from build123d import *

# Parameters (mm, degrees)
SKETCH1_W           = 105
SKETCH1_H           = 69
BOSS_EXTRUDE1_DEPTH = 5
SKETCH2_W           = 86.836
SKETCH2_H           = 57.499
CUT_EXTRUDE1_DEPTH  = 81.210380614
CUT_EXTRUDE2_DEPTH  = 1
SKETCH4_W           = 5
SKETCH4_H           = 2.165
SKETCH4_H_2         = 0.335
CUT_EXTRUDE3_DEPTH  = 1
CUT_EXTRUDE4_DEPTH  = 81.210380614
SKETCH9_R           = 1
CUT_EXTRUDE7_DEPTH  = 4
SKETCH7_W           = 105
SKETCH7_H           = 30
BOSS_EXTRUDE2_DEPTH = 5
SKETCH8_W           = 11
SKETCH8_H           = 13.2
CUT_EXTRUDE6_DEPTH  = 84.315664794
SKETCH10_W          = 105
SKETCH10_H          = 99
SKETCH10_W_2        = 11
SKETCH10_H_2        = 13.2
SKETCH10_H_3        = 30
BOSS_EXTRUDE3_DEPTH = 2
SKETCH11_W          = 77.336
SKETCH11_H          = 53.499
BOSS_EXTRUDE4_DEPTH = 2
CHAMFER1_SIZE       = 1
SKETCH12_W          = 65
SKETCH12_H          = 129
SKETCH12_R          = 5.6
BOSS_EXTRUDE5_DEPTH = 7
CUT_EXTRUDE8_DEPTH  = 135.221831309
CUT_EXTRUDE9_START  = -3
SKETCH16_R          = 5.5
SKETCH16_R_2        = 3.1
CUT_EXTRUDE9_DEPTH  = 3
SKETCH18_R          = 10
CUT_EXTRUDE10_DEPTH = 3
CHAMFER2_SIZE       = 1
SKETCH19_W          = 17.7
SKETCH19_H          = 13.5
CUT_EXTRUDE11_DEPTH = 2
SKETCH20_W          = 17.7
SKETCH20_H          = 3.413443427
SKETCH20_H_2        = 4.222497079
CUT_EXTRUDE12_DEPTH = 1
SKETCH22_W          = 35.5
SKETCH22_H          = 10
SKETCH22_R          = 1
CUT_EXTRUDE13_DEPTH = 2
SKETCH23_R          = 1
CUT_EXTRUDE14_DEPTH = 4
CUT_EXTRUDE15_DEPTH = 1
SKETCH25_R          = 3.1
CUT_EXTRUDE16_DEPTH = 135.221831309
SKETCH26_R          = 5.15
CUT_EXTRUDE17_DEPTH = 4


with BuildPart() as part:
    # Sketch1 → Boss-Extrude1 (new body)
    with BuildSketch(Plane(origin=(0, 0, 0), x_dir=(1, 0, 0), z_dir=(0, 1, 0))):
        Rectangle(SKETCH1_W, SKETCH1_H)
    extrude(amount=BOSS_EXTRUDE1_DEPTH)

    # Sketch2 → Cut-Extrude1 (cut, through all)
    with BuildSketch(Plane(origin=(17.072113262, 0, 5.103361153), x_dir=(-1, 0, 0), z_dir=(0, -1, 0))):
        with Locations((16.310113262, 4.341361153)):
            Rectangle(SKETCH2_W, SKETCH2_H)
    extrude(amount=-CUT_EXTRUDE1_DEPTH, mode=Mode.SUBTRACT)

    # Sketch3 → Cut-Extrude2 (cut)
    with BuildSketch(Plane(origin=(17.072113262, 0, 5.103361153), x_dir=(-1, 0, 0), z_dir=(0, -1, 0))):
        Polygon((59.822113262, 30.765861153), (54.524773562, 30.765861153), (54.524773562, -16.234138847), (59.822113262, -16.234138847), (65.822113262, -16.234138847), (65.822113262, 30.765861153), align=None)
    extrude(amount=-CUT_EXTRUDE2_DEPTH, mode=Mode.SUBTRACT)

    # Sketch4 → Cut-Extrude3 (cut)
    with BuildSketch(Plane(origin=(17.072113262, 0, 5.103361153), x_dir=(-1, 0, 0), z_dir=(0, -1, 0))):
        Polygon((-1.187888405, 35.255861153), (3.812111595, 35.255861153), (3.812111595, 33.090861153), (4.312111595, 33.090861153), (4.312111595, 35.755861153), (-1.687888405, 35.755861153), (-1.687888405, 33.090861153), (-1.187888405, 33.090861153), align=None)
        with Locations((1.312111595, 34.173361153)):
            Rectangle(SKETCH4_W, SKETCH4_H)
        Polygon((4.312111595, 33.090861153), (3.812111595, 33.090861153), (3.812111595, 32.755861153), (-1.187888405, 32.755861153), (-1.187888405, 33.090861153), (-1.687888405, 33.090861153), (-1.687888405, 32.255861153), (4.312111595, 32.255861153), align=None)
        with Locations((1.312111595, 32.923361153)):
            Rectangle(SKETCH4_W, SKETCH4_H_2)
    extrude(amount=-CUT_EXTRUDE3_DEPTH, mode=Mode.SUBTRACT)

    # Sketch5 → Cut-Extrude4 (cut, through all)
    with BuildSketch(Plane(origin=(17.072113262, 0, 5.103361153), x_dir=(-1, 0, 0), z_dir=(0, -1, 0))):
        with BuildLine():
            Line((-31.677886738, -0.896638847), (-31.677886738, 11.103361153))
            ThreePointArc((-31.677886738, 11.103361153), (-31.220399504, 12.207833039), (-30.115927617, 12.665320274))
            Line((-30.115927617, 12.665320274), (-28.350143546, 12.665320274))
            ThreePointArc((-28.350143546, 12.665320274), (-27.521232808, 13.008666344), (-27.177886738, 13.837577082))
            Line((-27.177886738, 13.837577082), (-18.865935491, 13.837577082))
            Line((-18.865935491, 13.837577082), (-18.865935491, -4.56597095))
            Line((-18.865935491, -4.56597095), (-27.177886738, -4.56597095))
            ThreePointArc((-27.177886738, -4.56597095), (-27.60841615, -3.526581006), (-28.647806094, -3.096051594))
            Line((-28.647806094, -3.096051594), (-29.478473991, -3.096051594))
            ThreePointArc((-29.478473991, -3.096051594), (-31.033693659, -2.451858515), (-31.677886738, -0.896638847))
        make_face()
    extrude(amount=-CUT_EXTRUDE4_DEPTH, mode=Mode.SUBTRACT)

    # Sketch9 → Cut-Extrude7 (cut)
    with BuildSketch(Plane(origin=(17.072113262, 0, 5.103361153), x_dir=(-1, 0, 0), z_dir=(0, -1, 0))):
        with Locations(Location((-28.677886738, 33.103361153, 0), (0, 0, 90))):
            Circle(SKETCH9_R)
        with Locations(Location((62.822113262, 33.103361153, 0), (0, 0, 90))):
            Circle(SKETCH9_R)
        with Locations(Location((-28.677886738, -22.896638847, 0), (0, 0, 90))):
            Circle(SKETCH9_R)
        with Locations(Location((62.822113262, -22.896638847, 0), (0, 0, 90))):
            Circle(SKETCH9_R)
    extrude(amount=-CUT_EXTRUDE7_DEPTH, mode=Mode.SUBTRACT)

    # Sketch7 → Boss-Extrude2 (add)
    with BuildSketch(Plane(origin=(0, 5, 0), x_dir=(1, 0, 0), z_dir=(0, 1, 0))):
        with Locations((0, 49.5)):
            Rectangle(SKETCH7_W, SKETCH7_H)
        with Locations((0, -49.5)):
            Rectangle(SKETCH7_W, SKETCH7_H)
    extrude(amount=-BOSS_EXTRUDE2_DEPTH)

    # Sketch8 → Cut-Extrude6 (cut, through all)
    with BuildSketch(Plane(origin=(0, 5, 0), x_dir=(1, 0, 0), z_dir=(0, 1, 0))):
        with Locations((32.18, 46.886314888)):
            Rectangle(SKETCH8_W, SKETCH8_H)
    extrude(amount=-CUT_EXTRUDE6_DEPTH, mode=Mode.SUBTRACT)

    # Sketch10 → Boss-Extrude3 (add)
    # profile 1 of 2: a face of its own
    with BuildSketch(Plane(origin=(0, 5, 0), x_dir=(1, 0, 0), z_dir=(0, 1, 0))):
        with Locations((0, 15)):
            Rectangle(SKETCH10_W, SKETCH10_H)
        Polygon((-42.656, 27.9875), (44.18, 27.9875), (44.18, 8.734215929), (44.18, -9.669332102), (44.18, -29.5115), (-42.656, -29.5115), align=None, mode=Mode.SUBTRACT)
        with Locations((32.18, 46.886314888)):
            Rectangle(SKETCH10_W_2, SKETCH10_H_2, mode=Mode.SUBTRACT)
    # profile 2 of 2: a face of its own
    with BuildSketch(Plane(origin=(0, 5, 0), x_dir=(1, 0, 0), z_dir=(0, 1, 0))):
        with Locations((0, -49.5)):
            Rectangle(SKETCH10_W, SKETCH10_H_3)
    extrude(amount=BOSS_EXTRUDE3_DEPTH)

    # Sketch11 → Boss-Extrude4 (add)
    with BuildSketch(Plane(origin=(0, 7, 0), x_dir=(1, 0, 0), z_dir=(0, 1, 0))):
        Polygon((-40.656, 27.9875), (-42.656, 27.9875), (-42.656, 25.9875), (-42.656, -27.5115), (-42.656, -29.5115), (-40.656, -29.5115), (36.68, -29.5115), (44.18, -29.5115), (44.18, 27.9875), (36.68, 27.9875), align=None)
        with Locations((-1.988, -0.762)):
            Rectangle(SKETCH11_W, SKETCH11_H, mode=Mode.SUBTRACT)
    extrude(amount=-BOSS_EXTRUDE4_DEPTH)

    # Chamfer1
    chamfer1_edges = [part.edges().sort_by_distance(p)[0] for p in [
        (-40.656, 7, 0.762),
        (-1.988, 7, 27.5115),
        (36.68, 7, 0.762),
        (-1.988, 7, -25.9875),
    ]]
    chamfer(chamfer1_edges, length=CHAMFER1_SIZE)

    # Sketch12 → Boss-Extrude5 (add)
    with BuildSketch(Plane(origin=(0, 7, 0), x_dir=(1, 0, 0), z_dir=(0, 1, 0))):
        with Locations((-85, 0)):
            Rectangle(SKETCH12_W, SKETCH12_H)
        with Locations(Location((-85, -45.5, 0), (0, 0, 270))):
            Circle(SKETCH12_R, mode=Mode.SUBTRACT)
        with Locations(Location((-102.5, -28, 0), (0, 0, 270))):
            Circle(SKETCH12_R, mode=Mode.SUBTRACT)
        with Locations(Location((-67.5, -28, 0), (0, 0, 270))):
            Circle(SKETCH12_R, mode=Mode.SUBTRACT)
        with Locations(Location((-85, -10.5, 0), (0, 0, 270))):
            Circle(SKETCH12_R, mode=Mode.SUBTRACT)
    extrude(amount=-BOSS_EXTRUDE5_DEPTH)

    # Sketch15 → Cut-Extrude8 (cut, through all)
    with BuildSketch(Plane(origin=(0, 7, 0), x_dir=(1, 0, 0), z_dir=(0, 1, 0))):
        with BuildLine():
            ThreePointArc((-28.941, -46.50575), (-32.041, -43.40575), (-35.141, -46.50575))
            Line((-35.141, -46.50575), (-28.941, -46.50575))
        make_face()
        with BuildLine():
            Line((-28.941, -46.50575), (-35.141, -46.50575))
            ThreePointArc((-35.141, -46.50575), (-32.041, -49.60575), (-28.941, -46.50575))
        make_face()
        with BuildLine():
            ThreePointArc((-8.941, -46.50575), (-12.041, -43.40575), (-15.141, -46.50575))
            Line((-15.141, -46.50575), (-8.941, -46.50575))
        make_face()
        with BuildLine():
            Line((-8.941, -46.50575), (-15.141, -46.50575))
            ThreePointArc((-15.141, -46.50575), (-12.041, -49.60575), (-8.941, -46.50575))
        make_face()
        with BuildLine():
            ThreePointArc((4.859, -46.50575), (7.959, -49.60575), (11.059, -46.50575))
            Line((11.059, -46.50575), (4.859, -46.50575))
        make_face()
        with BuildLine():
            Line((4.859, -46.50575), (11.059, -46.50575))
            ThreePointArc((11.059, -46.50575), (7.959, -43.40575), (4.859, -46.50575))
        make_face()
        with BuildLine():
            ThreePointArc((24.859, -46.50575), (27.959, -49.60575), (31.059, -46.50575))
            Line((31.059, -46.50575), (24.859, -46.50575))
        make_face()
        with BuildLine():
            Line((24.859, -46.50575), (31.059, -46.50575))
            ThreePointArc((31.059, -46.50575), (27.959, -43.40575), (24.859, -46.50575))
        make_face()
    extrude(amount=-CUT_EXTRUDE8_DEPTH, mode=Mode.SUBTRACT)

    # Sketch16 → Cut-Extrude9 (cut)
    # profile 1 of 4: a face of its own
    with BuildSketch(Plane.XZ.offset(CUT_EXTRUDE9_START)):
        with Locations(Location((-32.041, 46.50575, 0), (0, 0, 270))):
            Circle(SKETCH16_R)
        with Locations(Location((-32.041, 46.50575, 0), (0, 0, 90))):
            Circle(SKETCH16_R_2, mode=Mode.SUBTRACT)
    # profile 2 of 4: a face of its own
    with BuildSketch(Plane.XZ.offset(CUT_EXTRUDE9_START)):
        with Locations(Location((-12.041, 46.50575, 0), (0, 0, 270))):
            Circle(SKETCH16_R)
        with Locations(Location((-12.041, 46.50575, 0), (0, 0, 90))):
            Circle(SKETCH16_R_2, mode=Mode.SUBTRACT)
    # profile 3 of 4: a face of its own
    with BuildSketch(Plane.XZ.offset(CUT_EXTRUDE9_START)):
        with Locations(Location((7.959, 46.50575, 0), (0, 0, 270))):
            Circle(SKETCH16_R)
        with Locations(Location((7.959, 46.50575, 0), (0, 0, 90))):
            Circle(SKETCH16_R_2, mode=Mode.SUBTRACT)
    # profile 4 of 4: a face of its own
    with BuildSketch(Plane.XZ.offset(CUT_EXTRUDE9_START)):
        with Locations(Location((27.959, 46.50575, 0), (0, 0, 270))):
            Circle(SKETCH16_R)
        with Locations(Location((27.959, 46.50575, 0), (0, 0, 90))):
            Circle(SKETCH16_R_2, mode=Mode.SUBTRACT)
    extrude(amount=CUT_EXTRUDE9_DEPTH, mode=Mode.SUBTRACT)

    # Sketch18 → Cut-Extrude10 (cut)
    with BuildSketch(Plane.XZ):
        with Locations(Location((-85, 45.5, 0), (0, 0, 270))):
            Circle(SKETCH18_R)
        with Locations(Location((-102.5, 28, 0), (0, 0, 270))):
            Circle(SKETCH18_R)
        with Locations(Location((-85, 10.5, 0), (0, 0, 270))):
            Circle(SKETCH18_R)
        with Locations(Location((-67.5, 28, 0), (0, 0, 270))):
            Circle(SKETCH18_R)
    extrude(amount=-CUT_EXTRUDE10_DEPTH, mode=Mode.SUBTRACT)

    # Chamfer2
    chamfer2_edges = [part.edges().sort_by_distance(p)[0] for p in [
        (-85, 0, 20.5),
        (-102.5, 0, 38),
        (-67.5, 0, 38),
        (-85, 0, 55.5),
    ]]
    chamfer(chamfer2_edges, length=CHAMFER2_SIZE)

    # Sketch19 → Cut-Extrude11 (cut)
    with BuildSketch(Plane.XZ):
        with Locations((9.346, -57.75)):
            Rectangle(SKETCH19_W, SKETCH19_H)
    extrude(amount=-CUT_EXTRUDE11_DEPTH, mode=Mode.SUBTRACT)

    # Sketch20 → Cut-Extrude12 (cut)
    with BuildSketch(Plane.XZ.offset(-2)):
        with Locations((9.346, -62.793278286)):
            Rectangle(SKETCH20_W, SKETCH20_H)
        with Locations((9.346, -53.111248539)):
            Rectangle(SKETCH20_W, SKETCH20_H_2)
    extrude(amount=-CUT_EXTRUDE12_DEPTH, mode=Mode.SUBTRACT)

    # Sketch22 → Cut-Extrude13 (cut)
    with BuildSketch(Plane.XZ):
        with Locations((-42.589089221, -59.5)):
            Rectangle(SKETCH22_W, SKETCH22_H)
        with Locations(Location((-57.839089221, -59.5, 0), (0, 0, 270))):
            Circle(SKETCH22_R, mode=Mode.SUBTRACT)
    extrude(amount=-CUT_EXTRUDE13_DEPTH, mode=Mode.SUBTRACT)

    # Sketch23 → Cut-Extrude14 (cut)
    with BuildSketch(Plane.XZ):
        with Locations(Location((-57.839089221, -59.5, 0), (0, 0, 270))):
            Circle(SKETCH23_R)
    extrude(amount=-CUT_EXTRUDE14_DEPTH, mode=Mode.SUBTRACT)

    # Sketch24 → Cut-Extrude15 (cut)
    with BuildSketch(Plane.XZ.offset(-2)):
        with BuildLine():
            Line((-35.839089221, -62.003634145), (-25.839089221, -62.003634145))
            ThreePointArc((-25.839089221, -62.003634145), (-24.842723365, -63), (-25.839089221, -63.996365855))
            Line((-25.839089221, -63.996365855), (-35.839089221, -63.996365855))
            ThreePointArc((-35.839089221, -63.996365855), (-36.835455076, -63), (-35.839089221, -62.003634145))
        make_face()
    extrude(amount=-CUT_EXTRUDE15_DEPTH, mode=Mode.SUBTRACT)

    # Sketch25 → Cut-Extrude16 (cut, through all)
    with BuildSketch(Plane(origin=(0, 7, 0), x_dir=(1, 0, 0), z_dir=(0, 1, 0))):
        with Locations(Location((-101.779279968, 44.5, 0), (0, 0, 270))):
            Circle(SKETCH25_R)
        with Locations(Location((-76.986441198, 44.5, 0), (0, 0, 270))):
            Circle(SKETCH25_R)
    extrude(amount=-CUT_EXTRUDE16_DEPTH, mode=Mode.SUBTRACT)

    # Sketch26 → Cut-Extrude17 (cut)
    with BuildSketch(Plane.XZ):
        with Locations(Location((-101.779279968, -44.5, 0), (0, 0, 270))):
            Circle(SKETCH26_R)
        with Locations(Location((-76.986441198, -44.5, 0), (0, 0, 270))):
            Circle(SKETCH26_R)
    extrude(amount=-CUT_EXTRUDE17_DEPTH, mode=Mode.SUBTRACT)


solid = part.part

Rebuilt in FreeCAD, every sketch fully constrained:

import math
import FreeCAD as App
import Part
import Sketcher
Q = App.Units.Quantity


def edges_at(feature, points):
    """Names of the edges that pass closest to the given points."""
    edges = feature.Shape.Edges
    near = lambda p: min(range(len(edges)), key=lambda i: edges[i].distToShape(Part.Vertex(*p))[0])
    return sorted({f"Edge{near(p) + 1}" for p in points})


def add_polygon(sketch, points):
    """Adds a closed chain of lines whose ends are joined by coincident constraints."""
    first, n = sketch.GeometryCount, len(points)
    for a, b in zip(points, points[1:] + points[:1]):
        sketch.addGeometry(Part.LineSegment(App.Vector(*a, 0), App.Vector(*b, 0)), False)
    for i in range(n):
        sketch.addConstraint(Sketcher.Constraint("Coincident", first + i, 2, first + (i + 1) % n, 1))

doc = App.newDocument("Part")
body = doc.addObject("PartDesign::Body", "Body")

# Sketch on XZ plane
sketch1 = doc.addObject("Sketcher::SketchObject", "Sketch")
body.addObject(sketch1)
sketch1.AttachmentSupport = (doc.XZ_Plane, [""])
sketch1.MapMode = "FlatFace"
add_polygon(sketch1, [(-52, -34), (-52, 34), (52, 34), (52, -34)])  # lines 0-3
sketch1.addConstraint(Sketcher.Constraint("Vertical", 0))
sketch1.addConstraint(Sketcher.Constraint("Horizontal", 1))
sketch1.addConstraint(Sketcher.Constraint("Vertical", 2))
sketch1.addConstraint(Sketcher.Constraint("Horizontal", 3))
sketch1.addConstraint(Sketcher.Constraint("Symmetric", 0, 2, 2, 2, -1, 1))
sketch1.addConstraint(Sketcher.Constraint("DistanceX", 1, 1, 1, 2, Q("105 mm")))
sketch1.addConstraint(Sketcher.Constraint("DistanceY", 0, 1, 0, 2, Q("69 mm")))
pad1 = doc.addObject("PartDesign::Pad", "Pad")
body.addObject(pad1)
pad1.Profile = sketch1
pad1.Length = 5
pad1.Reversed = True

# Sketch on XZ plane
sketch2 = doc.addObject("Sketcher::SketchObject", "Sketch001")
body.addObject(sketch2)
sketch2.AttachmentSupport = (doc.XZ_Plane, [""])
sketch2.MapMode = "FlatFace"
add_polygon(sketch2, [(44, -28), (44, 30), (-43, 30), (-43, -28)])  # lines 0-3
sketch2.addConstraint(Sketcher.Constraint("Vertical", 0))
sketch2.addConstraint(Sketcher.Constraint("Horizontal", 1))
sketch2.addConstraint(Sketcher.Constraint("Vertical", 2))
sketch2.addConstraint(Sketcher.Constraint("Horizontal", 3))
sketch2.addConstraint(Sketcher.Constraint("DistanceX", 1, 2, 1, 1, Q("86.836 mm")))
sketch2.addConstraint(Sketcher.Constraint("DistanceY", 0, 1, 0, 2, Q("57.499 mm")))
sketch2.addConstraint(Sketcher.Constraint("DistanceX", -1, 1, 0, 2, Q("44.18 mm")))
sketch2.addConstraint(Sketcher.Constraint("DistanceY", -1, 1, 0, 2, Q("29.5115 mm")))
pocket1 = doc.addObject("PartDesign::Pocket", "Pocket")
body.addObject(pocket1)
pocket1.Profile = sketch2
pocket1.Type = "ThroughAll"

# Sketch on XZ plane
sketch3 = doc.addObject("Sketcher::SketchObject", "Sketch002")
body.addObject(sketch3)
sketch3.AttachmentSupport = (doc.XZ_Plane, [""])
sketch3.MapMode = "FlatFace"
add_polygon(sketch3, [(-37, -26), (-37, 21), (-49, 21), (-49, -26)])  # lines 0-3
sketch3.addConstraint(Sketcher.Constraint("Vertical", 0))
sketch3.addConstraint(Sketcher.Constraint("Horizontal", 1))
sketch3.addConstraint(Sketcher.Constraint("Vertical", 2))
sketch3.addConstraint(Sketcher.Constraint("Horizontal", 3))
sketch3.addConstraint(Sketcher.Constraint("DistanceY", 0, 1, 0, 2, Q("47 mm")))
sketch3.addConstraint(Sketcher.Constraint("DistanceX", 1, 2, -1, 1, Q("48.75 mm")))
sketch3.addConstraint(Sketcher.Constraint("DistanceX", 1, 2, 1, 1, Q("11.29734 mm")))
sketch3.addConstraint(Sketcher.Constraint("DistanceY", -1, 1, 0, 2, Q("21.3375 mm")))
pocket2 = doc.addObject("PartDesign::Pocket", "Pocket001")
body.addObject(pocket2)
pocket2.Profile = sketch3
pocket2.Length = 1

# Sketch on XZ plane
sketch4 = doc.addObject("Sketcher::SketchObject", "Sketch003")
body.addObject(sketch4)
sketch4.AttachmentSupport = (doc.XZ_Plane, [""])
sketch4.MapMode = "FlatFace"
add_polygon(sketch4, [(12.8, -30.7), (18.8, -30.7), (18.8, -27.2), (12.8, -27.2)])  # lines 0-3
sketch4.addConstraint(Sketcher.Constraint("Horizontal", 0))
sketch4.addConstraint(Sketcher.Constraint("Vertical", 1))
sketch4.addConstraint(Sketcher.Constraint("Horizontal", 2))
sketch4.addConstraint(Sketcher.Constraint("Vertical", 3))
sketch4.addConstraint(Sketcher.Constraint("DistanceX", 0, 1, 0, 2, Q("6 mm")))
sketch4.addConstraint(Sketcher.Constraint("DistanceY", 1, 1, 1, 2, Q("3.5 mm")))
sketch4.addConstraint(Sketcher.Constraint("DistanceX", -1, 1, 0, 2, Q("18.760002 mm")))
sketch4.addConstraint(Sketcher.Constraint("DistanceY", 0, 2, -1, 1, Q("30.6525 mm")))
pocket3 = doc.addObject("PartDesign::Pocket", "Pocket002")
body.addObject(pocket3)
pocket3.Profile = sketch4
pocket3.Length = 1

# Sketch on XZ plane
sketch5 = doc.addObject("Sketcher::SketchObject", "Sketch004")
body.addObject(sketch5)
sketch5.AttachmentSupport = (doc.XZ_Plane, [""])
sketch5.MapMode = "FlatFace"
sketch5.addGeometry(Part.LineSegment(App.Vector(48.8, -6, 0), App.Vector(48.8, 6, 0)), False)
sketch5.addGeometry(Part.ArcOfCircle(Part.Circle(App.Vector(46.6, 6, 0), App.Vector(0, 0, 1), 2.2), math.radians(0), math.radians(90)), False)
sketch5.addGeometry(Part.LineSegment(App.Vector(46.6, 8.2, 0), App.Vector(45.7, 8.2, 0)), False)
sketch5.addGeometry(Part.ArcOfCircle(Part.Circle(App.Vector(45.7, 9.7, 0), App.Vector(0, 0, 1), 1.5), math.radians(-180), math.radians(-90)), False)
sketch5.addGeometry(Part.LineSegment(App.Vector(44.2, 9.7, 0), App.Vector(35.9, 9.7, 0)), False)
sketch5.addGeometry(Part.LineSegment(App.Vector(35.9, 9.7, 0), App.Vector(35.9, -8.7, 0)), False)
sketch5.addGeometry(Part.LineSegment(App.Vector(35.9, -8.7, 0), App.Vector(44.2, -8.7, 0)), False)
sketch5.addGeometry(Part.ArcOfCircle(Part.Circle(App.Vector(45.4, -8.7, 0), App.Vector(0, 0, 1), 1.2), math.radians(90), math.radians(180)), False)
sketch5.addGeometry(Part.LineSegment(App.Vector(45.4, -7.6, 0), App.Vector(47.2, -7.6, 0)), False)
sketch5.addGeometry(Part.ArcOfCircle(Part.Circle(App.Vector(47.2, -6, 0), App.Vector(0, 0, 1), 1.6), math.radians(-90), math.radians(0)), False)
sketch5.addConstraint(Sketcher.Constraint("Tangent", 0, 2, 1, 1))
sketch5.addConstraint(Sketcher.Constraint("Tangent", 1, 2, 2, 1))
sketch5.addConstraint(Sketcher.Constraint("Tangent", 2, 2, 3, 2))
sketch5.addConstraint(Sketcher.Constraint("Coincident", 3, 1, 4, 1))
sketch5.addConstraint(Sketcher.Constraint("Coincident", 4, 2, 5, 1))
sketch5.addConstraint(Sketcher.Constraint("Coincident", 5, 2, 6, 1))
sketch5.addConstraint(Sketcher.Constraint("Coincident", 6, 2, 7, 2))
sketch5.addConstraint(Sketcher.Constraint("Tangent", 7, 1, 8, 1))
sketch5.addConstraint(Sketcher.Constraint("Tangent", 8, 2, 9, 1))
sketch5.addConstraint(Sketcher.Constraint("Tangent", 9, 2, 0, 1))
sketch5.addConstraint(Sketcher.Constraint("Vertical", 0))
sketch5.addConstraint(Sketcher.Constraint("Horizontal", 2))
sketch5.addConstraint(Sketcher.Constraint("Horizontal", 4))
sketch5.addConstraint(Sketcher.Constraint("Vertical", 5))
sketch5.addConstraint(Sketcher.Constraint("Horizontal", 6))
sketch5.addConstraint(Sketcher.Constraint("Horizontal", 8))
sketch5.addConstraint(Sketcher.Constraint("Horizontal", 7, 3, 5, 2))
sketch5.addConstraint(Sketcher.Constraint("Vertical", 3, 1, 6, 2))
sketch5.addConstraint(Sketcher.Constraint("DistanceY", 0, 1, 0, 2, Q("12 mm")))
sketch5.addConstraint(Sketcher.Constraint("DistanceY", -1, 1, 1, 3, Q("6 mm")))
sketch5.addConstraint(Sketcher.Constraint("DistanceX", 3, 1, 0, 2, Q("4.5 mm")))
sketch5.addConstraint(Sketcher.Constraint("DistanceX", -1, 1, 0, 2, Q("48.75 mm")))
sketch5.addConstraint(Sketcher.Constraint("Radius", 3, Q("1.469919 mm")))
sketch5.addConstraint(Sketcher.Constraint("Radius", 9, Q("1.561959 mm")))
sketch5.addConstraint(Sketcher.Constraint("Radius", 1, Q("2.199413 mm")))
sketch5.addConstraint(Sketcher.Constraint("Radius", 7, Q("1.172257 mm")))
sketch5.addConstraint(Sketcher.Constraint("DistanceX", 4, 2, 4, 1, Q("8.311951 mm")))
sketch5.addConstraint(Sketcher.Constraint("DistanceY", 5, 2, 5, 1, Q("18.403548 mm")))
pocket4 = doc.addObject("PartDesign::Pocket", "Pocket003")
body.addObject(pocket4)
pocket4.Profile = sketch5
pocket4.Type = "ThroughAll"

# Sketch on XZ plane
sketch6 = doc.addObject("Sketcher::SketchObject", "Sketch005")
body.addObject(sketch6)
sketch6.AttachmentSupport = (doc.XZ_Plane, [""])
sketch6.MapMode = "FlatFace"
sketch6.addGeometry(Part.Circle(App.Vector(45.8, -28, 0), App.Vector(0, 0, 1), 1), False)
sketch6.addGeometry(Part.Circle(App.Vector(-45.8, -28, 0), App.Vector(0, 0, 1), 1), False)
sketch6.addGeometry(Part.Circle(App.Vector(45.8, 28, 0), App.Vector(0, 0, 1), 1), False)
sketch6.addGeometry(Part.Circle(App.Vector(-45.8, 28, 0), App.Vector(0, 0, 1), 1), False)
sketch6.addConstraint(Sketcher.Constraint("Equal", 0, 1))
sketch6.addConstraint(Sketcher.Constraint("Equal", 1, 2))
sketch6.addConstraint(Sketcher.Constraint("Equal", 2, 3))
sketch6.addConstraint(Sketcher.Constraint("Symmetric", 1, 3, 2, 3, -1, 1))
sketch6.addConstraint(Sketcher.Constraint("Symmetric", 0, 3, 3, 3, -1, 1))
sketch6.addConstraint(Sketcher.Constraint("Symmetric", 0, 3, 1, 3, -2))
sketch6.addConstraint(Sketcher.Constraint("Diameter", 0, Q("2 mm")))
sketch6.addConstraint(Sketcher.Constraint("DistanceY", 0, 3, -1, 1, Q("28 mm")))
sketch6.addConstraint(Sketcher.Constraint("DistanceX", 1, 3, 0, 3, Q("91.5 mm")))
pocket5 = doc.addObject("PartDesign::Pocket", "Pocket004")
body.addObject(pocket5)
pocket5.Profile = sketch6
pocket5.Length = 4

# Sketch on XZ plane
sketch7 = doc.addObject("Sketcher::SketchObject", "Sketch006")
body.addObject(sketch7)
sketch7.AttachmentSupport = (doc.XZ_Plane, [""])
sketch7.MapMode = "FlatFace"
sketch7.AttachmentOffset = App.Placement(App.Vector(0, 0, -5), App.Rotation())
add_polygon(sketch7, [(-52, -64), (-52, -34), (52, -34), (52, -64)])  # lines 0-3
add_polygon(sketch7, [(-52, 34), (-52, 64), (52, 64), (52, 34)])  # lines 4-7
sketch7.addConstraint(Sketcher.Constraint("Vertical", 0))
sketch7.addConstraint(Sketcher.Constraint("Horizontal", 1))
sketch7.addConstraint(Sketcher.Constraint("Vertical", 2))
sketch7.addConstraint(Sketcher.Constraint("Horizontal", 3))
sketch7.addConstraint(Sketcher.Constraint("Vertical", 4))
sketch7.addConstraint(Sketcher.Constraint("Horizontal", 5))
sketch7.addConstraint(Sketcher.Constraint("Vertical", 6))
sketch7.addConstraint(Sketcher.Constraint("Horizontal", 7))
sketch7.addConstraint(Sketcher.Constraint("Symmetric", 2, 2, 4, 2, -1, 1))
sketch7.addConstraint(Sketcher.Constraint("Symmetric", 0, 2, 6, 2, -1, 1))
sketch7.addConstraint(Sketcher.Constraint("Vertical", 3, 2, 4, 2))
sketch7.addConstraint(Sketcher.Constraint("DistanceX", 1, 1, 1, 2, Q("105 mm")))
sketch7.addConstraint(Sketcher.Constraint("DistanceY", 0, 1, 0, 2, Q("30 mm")))
sketch7.addConstraint(Sketcher.Constraint("DistanceY", 0, 2, 4, 2, Q("99 mm")))
pad2 = doc.addObject("PartDesign::Pad", "Pad001")
body.addObject(pad2)
pad2.Profile = sketch7
pad2.Length = 5

# Sketch on XZ plane
sketch8 = doc.addObject("Sketcher::SketchObject", "Sketch007")
body.addObject(sketch8)
sketch8.AttachmentSupport = (doc.XZ_Plane, [""])
sketch8.MapMode = "FlatFace"
sketch8.AttachmentOffset = App.Placement(App.Vector(0, 0, -5), App.Rotation())
add_polygon(sketch8, [(27, -53), (27, -40), (38, -40), (38, -53)])  # lines 0-3
sketch8.addConstraint(Sketcher.Constraint("Vertical", 0))
sketch8.addConstraint(Sketcher.Constraint("Horizontal", 1))
sketch8.addConstraint(Sketcher.Constraint("Vertical", 2))
sketch8.addConstraint(Sketcher.Constraint("Horizontal", 3))
sketch8.addConstraint(Sketcher.Constraint("DistanceX", 1, 1, 1, 2, Q("11 mm")))
sketch8.addConstraint(Sketcher.Constraint("DistanceY", 0, 1, 0, 2, Q("13.2 mm")))
sketch8.addConstraint(Sketcher.Constraint("DistanceX", -1, 1, 0, 2, Q("26.68 mm")))
sketch8.addConstraint(Sketcher.Constraint("DistanceY", 0, 2, -1, 1, Q("40.286315 mm")))
pocket6 = doc.addObject("PartDesign::Pocket", "Pocket005")
body.addObject(pocket6)
pocket6.Profile = sketch8
pocket6.Type = "ThroughAll"
pocket6.Reversed = True

# Sketch on XZ plane
sketch9 = doc.addObject("Sketcher::SketchObject", "Sketch008")
body.addObject(sketch9)
sketch9.AttachmentSupport = (doc.XZ_Plane, [""])
sketch9.MapMode = "FlatFace"
sketch9.AttachmentOffset = App.Placement(App.Vector(0, 0, -5), App.Rotation())
add_polygon(sketch9, [(-52, -64), (-52, 64), (52, 64), (52, -64)])  # lines 0-3
add_polygon(sketch9, [(-43, 30), (-43, -28), (44, -28), (44, 30)])  # lines 4-7
add_polygon(sketch9, [(38, -40), (27, -40), (27, -53), (38, -53)])  # lines 8-11
sketch9.addConstraint(Sketcher.Constraint("Vertical", 0))
sketch9.addConstraint(Sketcher.Constraint("Horizontal", 1))
sketch9.addConstraint(Sketcher.Constraint("Vertical", 2))
sketch9.addConstraint(Sketcher.Constraint("Horizontal", 3))
sketch9.addConstraint(Sketcher.Constraint("Vertical", 4))
sketch9.addConstraint(Sketcher.Constraint("Horizontal", 5))
sketch9.addConstraint(Sketcher.Constraint("Vertical", 6))
sketch9.addConstraint(Sketcher.Constraint("Horizontal", 7))
sketch9.addConstraint(Sketcher.Constraint("Horizontal", 8))
sketch9.addConstraint(Sketcher.Constraint("Vertical", 9))
sketch9.addConstraint(Sketcher.Constraint("Horizontal", 10))
sketch9.addConstraint(Sketcher.Constraint("Vertical", 11))
sketch9.addConstraint(Sketcher.Constraint("Symmetric", 0, 2, 2, 2, -1, 1))
sketch9.addConstraint(Sketcher.Constraint("DistanceX", 1, 1, 1, 2, Q("105 mm")))
sketch9.addConstraint(Sketcher.Constraint("DistanceX", 8, 2, 8, 1, Q("11 mm")))
sketch9.addConstraint(Sketcher.Constraint("DistanceY", 0, 1, 0, 2, Q("129 mm")))
sketch9.addConstraint(Sketcher.Constraint("DistanceY", 9, 2, 9, 1, Q("13.2 mm")))
sketch9.addConstraint(Sketcher.Constraint("DistanceX", 8, 2, 5, 2, Q("17.5 mm")))
sketch9.addConstraint(Sketcher.Constraint("DistanceX", 5, 1, 5, 2, Q("86.836 mm")))
sketch9.addConstraint(Sketcher.Constraint("DistanceY", 4, 2, 4, 1, Q("57.499 mm")))
sketch9.addConstraint(Sketcher.Constraint("DistanceX", -1, 1, 5, 2, Q("44.18 mm")))
sketch9.addConstraint(Sketcher.Constraint("DistanceY", 4, 2, -1, 1, Q("27.9875 mm")))
sketch9.addConstraint(Sketcher.Constraint("DistanceY", 8, 2, -1, 1, Q("40.286315 mm")))
pad3 = doc.addObject("PartDesign::Pad", "Pad002")
body.addObject(pad3)
pad3.Profile = sketch9
pad3.Length = 2
pad3.Reversed = True

# Sketch on XZ plane
sketch10 = doc.addObject("Sketcher::SketchObject", "Sketch009")
body.addObject(sketch10)
sketch10.AttachmentSupport = (doc.XZ_Plane, [""])
sketch10.MapMode = "FlatFace"
sketch10.AttachmentOffset = App.Placement(App.Vector(0, 0, -7), App.Rotation())
add_polygon(sketch10, [(-43, -28), (-43, 30), (44, 30), (44, -28)])  # lines 0-3
add_polygon(sketch10, [(37, 28), (-41, 28), (-41, -26), (37, -26)])  # lines 4-7
sketch10.addConstraint(Sketcher.Constraint("Vertical", 0))
sketch10.addConstraint(Sketcher.Constraint("Horizontal", 1))
sketch10.addConstraint(Sketcher.Constraint("Vertical", 2))
sketch10.addConstraint(Sketcher.Constraint("Horizontal", 3))
sketch10.addConstraint(Sketcher.Constraint("Horizontal", 4))
sketch10.addConstraint(Sketcher.Constraint("Vertical", 5))
sketch10.addConstraint(Sketcher.Constraint("Horizontal", 6))
sketch10.addConstraint(Sketcher.Constraint("Vertical", 7))
sketch10.addConstraint(Sketcher.Constraint("DistanceX", 0, 2, 4, 2, Q("2 mm")))
sketch10.addConstraint(Sketcher.Constraint("DistanceY", 4, 2, 0, 2, Q("2 mm")))
sketch10.addConstraint(Sketcher.Constraint("DistanceY", 3, 2, 5, 2, Q("2 mm")))
sketch10.addConstraint(Sketcher.Constraint("DistanceX", 6, 2, 2, 2, Q("7.5 mm")))
sketch10.addConstraint(Sketcher.Constraint("DistanceX", 1, 1, 1, 2, Q("86.836 mm")))
sketch10.addConstraint(Sketcher.Constraint("DistanceY", 0, 1, 0, 2, Q("57.499 mm")))
sketch10.addConstraint(Sketcher.Constraint("DistanceX", -1, 1, 1, 2, Q("44.18 mm")))
sketch10.addConstraint(Sketcher.Constraint("DistanceY", -1, 1, 0, 2, Q("29.5115 mm")))
pad4 = doc.addObject("PartDesign::Pad", "Pad003")
body.addObject(pad4)
pad4.Profile = sketch10
pad4.Length = 2
doc.recompute()

chamfer = doc.addObject("PartDesign::Chamfer", "Chamfer")
body.addObject(chamfer)
chamfer.Base = (pad4, edges_at(pad4, [
    (-40.656, 7, 0.762),
    (-1.988, 7, 27.512),
    (36.68, 7, 0.762),
    (-1.988, 7, -25.988),
]))
chamfer.Size = 1

# Sketch on XZ plane
sketch11 = doc.addObject("Sketcher::SketchObject", "Sketch010")
body.addObject(sketch11)
sketch11.AttachmentSupport = (doc.XZ_Plane, [""])
sketch11.MapMode = "FlatFace"
sketch11.AttachmentOffset = App.Placement(App.Vector(0, 0, -7), App.Rotation())
add_polygon(sketch11, [(-118, -64), (-118, 64), (-52, 64), (-52, -64)])  # lines 0-3
sketch11.addGeometry(Part.Circle(App.Vector(-85, 46, 0), App.Vector(0, 0, 1), 6), False)  # 4
sketch11.addGeometry(Part.Circle(App.Vector(-102, 28, 0), App.Vector(0, 0, 1), 6), False)  # 5
sketch11.addGeometry(Part.Circle(App.Vector(-68, 28, 0), App.Vector(0, 0, 1), 6), False)  # 6
sketch11.addGeometry(Part.Circle(App.Vector(-85, 10, 0), App.Vector(0, 0, 1), 6), False)  # 7
sketch11.addConstraint(Sketcher.Constraint("Vertical", 0))
sketch11.addConstraint(Sketcher.Constraint("Horizontal", 1))
sketch11.addConstraint(Sketcher.Constraint("Vertical", 2))
sketch11.addConstraint(Sketcher.Constraint("Horizontal", 3))
sketch11.addConstraint(Sketcher.Constraint("Equal", 4, 5))
sketch11.addConstraint(Sketcher.Constraint("Equal", 5, 6))
sketch11.addConstraint(Sketcher.Constraint("Equal", 6, 7))
sketch11.addConstraint(Sketcher.Constraint("Horizontal", 5, 3, 6, 3))
sketch11.addConstraint(Sketcher.Constraint("Vertical", 4, 3, 7, 3))
sketch11.addConstraint(Sketcher.Constraint("Diameter", 4, Q("11.2 mm")))
sketch11.addConstraint(Sketcher.Constraint("DistanceX", 1, 1, 1, 2, Q("65 mm")))
sketch11.addConstraint(Sketcher.Constraint("DistanceY", 0, 1, 0, 2, Q("129 mm")))
sketch11.addConstraint(Sketcher.Constraint("DistanceX", 4, 3, -1, 1, Q("85 mm")))
sketch11.addConstraint(Sketcher.Constraint("DistanceY", -1, 1, 5, 3, Q("28 mm")))
sketch11.addConstraint(Sketcher.Constraint("DistanceX", 5, 3, 6, 3, Q("35 mm")))
sketch11.addConstraint(Sketcher.Constraint("DistanceY", 7, 3, 4, 3, Q("35 mm")))
sketch11.addConstraint(Sketcher.Constraint("DistanceY", 4, 3, 0, 2, Q("19 mm")))
sketch11.addConstraint(Sketcher.Constraint("DistanceX", 0, 2, 5, 3, Q("15 mm")))
sketch11.addConstraint(Sketcher.Constraint("DistanceY", -1, 1, 4, 3, Q("45.5 mm")))
sketch11.addConstraint(Sketcher.Constraint("DistanceX", 5, 3, -1, 1, Q("102.5 mm")))
pad5 = doc.addObject("PartDesign::Pad", "Pad004")
body.addObject(pad5)
pad5.Profile = sketch11
pad5.Length = 7

# Sketch on XZ plane
sketch12 = doc.addObject("Sketcher::SketchObject", "Sketch011")
body.addObject(sketch12)
sketch12.AttachmentSupport = (doc.XZ_Plane, [""])
sketch12.MapMode = "FlatFace"
sketch12.AttachmentOffset = App.Placement(App.Vector(0, 0, -7), App.Rotation())
sketch12.addGeometry(Part.Circle(App.Vector(-32, 46.5, 0), App.Vector(0, 0, 1), 3.1), False)
sketch12.addGeometry(Part.Circle(App.Vector(-12, 46.5, 0), App.Vector(0, 0, 1), 3.1), False)
sketch12.addGeometry(Part.Circle(App.Vector(8, 46.5, 0), App.Vector(0, 0, 1), 3.1), False)
sketch12.addGeometry(Part.Circle(App.Vector(28, 46.5, 0), App.Vector(0, 0, 1), 3.1), False)
sketch12.addConstraint(Sketcher.Constraint("Equal", 0, 1))
sketch12.addConstraint(Sketcher.Constraint("Equal", 1, 2))
sketch12.addConstraint(Sketcher.Constraint("Equal", 2, 3))
sketch12.addConstraint(Sketcher.Constraint("Horizontal", 0, 3, 1, 3))
sketch12.addConstraint(Sketcher.Constraint("Horizontal", 1, 3, 2, 3))
sketch12.addConstraint(Sketcher.Constraint("Horizontal", 2, 3, 3, 3))
sketch12.addConstraint(Sketcher.Constraint("Diameter", 0, Q("6.2 mm")))
sketch12.addConstraint(Sketcher.Constraint("DistanceX", 0, 3, 1, 3, Q("20 mm")))
sketch12.addConstraint(Sketcher.Constraint("DistanceX", 1, 3, 2, 3, Q("20 mm")))
sketch12.addConstraint(Sketcher.Constraint("DistanceX", 2, 3, 3, 3, Q("20 mm")))
sketch12.addConstraint(Sketcher.Constraint("DistanceX", 0, 3, -1, 1, Q("32.041 mm")))
sketch12.addConstraint(Sketcher.Constraint("DistanceY", -1, 1, 0, 3, Q("46.50575 mm")))
pocket7 = doc.addObject("PartDesign::Pocket", "Pocket006")
body.addObject(pocket7)
pocket7.Profile = sketch12
pocket7.Type = "ThroughAll"
pocket7.Reversed = True

# Sketch on XZ plane
sketch13 = doc.addObject("Sketcher::SketchObject", "Sketch012")
body.addObject(sketch13)
sketch13.AttachmentSupport = (doc.XZ_Plane, [""])
sketch13.MapMode = "FlatFace"
sketch13.AttachmentOffset = App.Placement(App.Vector(0, 0, -3), App.Rotation())
sketch13.addGeometry(Part.Circle(App.Vector(-32, 46.5, 0), App.Vector(0, 0, 1), 5.5), False)
sketch13.addGeometry(Part.Circle(App.Vector(-32, 46.5, 0), App.Vector(0, 0, 1), 3.1), False)
sketch13.addGeometry(Part.Circle(App.Vector(-12, 46.5, 0), App.Vector(0, 0, 1), 5.5), False)
sketch13.addGeometry(Part.Circle(App.Vector(-12, 46.5, 0), App.Vector(0, 0, 1), 3.1), False)
sketch13.addGeometry(Part.Circle(App.Vector(8, 46.5, 0), App.Vector(0, 0, 1), 5.5), False)
sketch13.addGeometry(Part.Circle(App.Vector(8, 46.5, 0), App.Vector(0, 0, 1), 3.1), False)
sketch13.addGeometry(Part.Circle(App.Vector(28, 46.5, 0), App.Vector(0, 0, 1), 5.5), False)
sketch13.addGeometry(Part.Circle(App.Vector(28, 46.5, 0), App.Vector(0, 0, 1), 3.1), False)
sketch13.addConstraint(Sketcher.Constraint("Coincident", 1, 3, 0, 3))
sketch13.addConstraint(Sketcher.Constraint("Coincident", 3, 3, 2, 3))
sketch13.addConstraint(Sketcher.Constraint("Coincident", 5, 3, 4, 3))
sketch13.addConstraint(Sketcher.Constraint("Coincident", 7, 3, 6, 3))
sketch13.addConstraint(Sketcher.Constraint("Equal", 0, 2))
sketch13.addConstraint(Sketcher.Constraint("Equal", 1, 3))
sketch13.addConstraint(Sketcher.Constraint("Equal", 2, 4))
sketch13.addConstraint(Sketcher.Constraint("Equal", 3, 5))
sketch13.addConstraint(Sketcher.Constraint("Equal", 4, 6))
sketch13.addConstraint(Sketcher.Constraint("Equal", 5, 7))
sketch13.addConstraint(Sketcher.Constraint("Horizontal", 1, 3, 2, 3))
sketch13.addConstraint(Sketcher.Constraint("Horizontal", 3, 3, 4, 3))
sketch13.addConstraint(Sketcher.Constraint("Horizontal", 5, 3, 6, 3))
sketch13.addConstraint(Sketcher.Constraint("Diameter", 0, Q("11 mm")))
sketch13.addConstraint(Sketcher.Constraint("Diameter", 1, Q("6.2 mm")))
sketch13.addConstraint(Sketcher.Constraint("DistanceX", 0, 3, 2, 3, Q("20 mm")))
sketch13.addConstraint(Sketcher.Constraint("DistanceX", 2, 3, 4, 3, Q("20 mm")))
sketch13.addConstraint(Sketcher.Constraint("DistanceX", 4, 3, 6, 3, Q("20 mm")))
sketch13.addConstraint(Sketcher.Constraint("DistanceX", 0, 3, -1, 1, Q("32.041 mm")))
sketch13.addConstraint(Sketcher.Constraint("DistanceY", -1, 1, 0, 3, Q("46.50575 mm")))
pocket8 = doc.addObject("PartDesign::Pocket", "Pocket007")
body.addObject(pocket8)
pocket8.Profile = sketch13
pocket8.Length = 3
pocket8.Reversed = True

# Sketch on XZ plane
sketch14 = doc.addObject("Sketcher::SketchObject", "Sketch013")
body.addObject(sketch14)
sketch14.AttachmentSupport = (doc.XZ_Plane, [""])
sketch14.MapMode = "FlatFace"
sketch14.addGeometry(Part.Circle(App.Vector(-85, 46, 0), App.Vector(0, 0, 1), 10), False)
sketch14.addGeometry(Part.Circle(App.Vector(-102, 28, 0), App.Vector(0, 0, 1), 10), False)
sketch14.addGeometry(Part.Circle(App.Vector(-85, 10, 0), App.Vector(0, 0, 1), 10), False)
sketch14.addGeometry(Part.Circle(App.Vector(-68, 28, 0), App.Vector(0, 0, 1), 10), False)
sketch14.addConstraint(Sketcher.Constraint("Equal", 0, 1))
sketch14.addConstraint(Sketcher.Constraint("Equal", 1, 2))
sketch14.addConstraint(Sketcher.Constraint("Equal", 2, 3))
sketch14.addConstraint(Sketcher.Constraint("Horizontal", 1, 3, 3, 3))
sketch14.addConstraint(Sketcher.Constraint("Vertical", 0, 3, 2, 3))
sketch14.addConstraint(Sketcher.Constraint("Diameter", 0, Q("20 mm")))
sketch14.addConstraint(Sketcher.Constraint("DistanceX", 0, 3, -1, 1, Q("85 mm")))
sketch14.addConstraint(Sketcher.Constraint("DistanceY", -1, 1, 1, 3, Q("28 mm")))
sketch14.addConstraint(Sketcher.Constraint("DistanceY", 2, 3, 0, 3, Q("35 mm")))
sketch14.addConstraint(Sketcher.Constraint("DistanceX", 1, 3, 3, 3, Q("35 mm")))
sketch14.addConstraint(Sketcher.Constraint("DistanceY", -1, 1, 0, 3, Q("45.5 mm")))
sketch14.addConstraint(Sketcher.Constraint("DistanceX", 1, 3, -1, 1, Q("102.5 mm")))
pocket9 = doc.addObject("PartDesign::Pocket", "Pocket008")
body.addObject(pocket9)
pocket9.Profile = sketch14
pocket9.Length = 3
doc.recompute()

chamfer2 = doc.addObject("PartDesign::Chamfer", "Chamfer001")
body.addObject(chamfer2)
chamfer2.Base = (pocket9, edges_at(pocket9, [
    (-85, 0, 20.5),
    (-102.5, 0, 38),
    (-67.5, 0, 38),
    (-85, 0, 55.5),
]))
chamfer2.Size = 1

# Sketch on XZ plane
sketch15 = doc.addObject("Sketcher::SketchObject", "Sketch014")
body.addObject(sketch15)
sketch15.AttachmentSupport = (doc.XZ_Plane, [""])
sketch15.MapMode = "FlatFace"
add_polygon(sketch15, [(0, -51), (0, -64), (18, -64), (18, -51)])  # lines 0-3
sketch15.addConstraint(Sketcher.Constraint("Vertical", 0))
sketch15.addConstraint(Sketcher.Constraint("Horizontal", 1))
sketch15.addConstraint(Sketcher.Constraint("Vertical", 2))
sketch15.addConstraint(Sketcher.Constraint("Horizontal", 3))
sketch15.addConstraint(Sketcher.Constraint("DistanceX", 1, 1, 1, 2, Q("17.7 mm")))
sketch15.addConstraint(Sketcher.Constraint("DistanceY", 0, 2, 0, 1, Q("13.5 mm")))
sketch15.addConstraint(Sketcher.Constraint("DistanceY", 2, 2, -1, 1, Q("51 mm")))
sketch15.addConstraint(Sketcher.Constraint("DistanceX", -1, 1, 0, 2, Q("0.496 mm")))
pocket10 = doc.addObject("PartDesign::Pocket", "Pocket009")
body.addObject(pocket10)
pocket10.Profile = sketch15
pocket10.Length = 2

# Sketch on XZ plane
sketch16 = doc.addObject("Sketcher::SketchObject", "Sketch015")
body.addObject(sketch16)
sketch16.AttachmentSupport = (doc.XZ_Plane, [""])
sketch16.MapMode = "FlatFace"
sketch16.AttachmentOffset = App.Placement(App.Vector(0, 0, -2), App.Rotation())
add_polygon(sketch16, [(0.5, -61.1), (0.5, -64.5), (18.2, -64.5), (18.2, -61.1)])  # lines 0-3
add_polygon(sketch16, [(0.5, -51), (0.5, -55.2), (18.2, -55.2), (18.2, -51)])  # lines 4-7
sketch16.addConstraint(Sketcher.Constraint("Vertical", 0))
sketch16.addConstraint(Sketcher.Constraint("Horizontal", 1))
sketch16.addConstraint(Sketcher.Constraint("Vertical", 2))
sketch16.addConstraint(Sketcher.Constraint("Horizontal", 3))
sketch16.addConstraint(Sketcher.Constraint("Vertical", 4))
sketch16.addConstraint(Sketcher.Constraint("Horizontal", 5))
sketch16.addConstraint(Sketcher.Constraint("Vertical", 6))
sketch16.addConstraint(Sketcher.Constraint("Horizontal", 7))
sketch16.addConstraint(Sketcher.Constraint("Vertical", 3, 2, 4, 2))
sketch16.addConstraint(Sketcher.Constraint("Vertical", 2, 2, 5, 2))
sketch16.addConstraint(Sketcher.Constraint("DistanceX", 1, 1, 1, 2, Q("17.7 mm")))
sketch16.addConstraint(Sketcher.Constraint("DistanceY", 6, 2, -1, 1, Q("51 mm")))
sketch16.addConstraint(Sketcher.Constraint("DistanceY", 0, 2, -1, 1, Q("64.5 mm")))
sketch16.addConstraint(Sketcher.Constraint("DistanceX", -1, 1, 0, 2, Q("0.496 mm")))
sketch16.addConstraint(Sketcher.Constraint("DistanceY", 0, 2, 0, 1, Q("3.413443 mm")))
sketch16.addConstraint(Sketcher.Constraint("DistanceY", 4, 2, 4, 1, Q("4.222497 mm")))
pocket11 = doc.addObject("PartDesign::Pocket", "Pocket010")
body.addObject(pocket11)
pocket11.Profile = sketch16
pocket11.Length = 1

# Sketch on XZ plane
sketch17 = doc.addObject("Sketcher::SketchObject", "Sketch016")
body.addObject(sketch17)
sketch17.AttachmentSupport = (doc.XZ_Plane, [""])
sketch17.MapMode = "FlatFace"
add_polygon(sketch17, [(-60.3, -54.5), (-60.3, -64.5), (-24.8, -64.5), (-24.8, -54.5)])  # lines 0-3
sketch17.addGeometry(Part.Circle(App.Vector(-57.8, -59.5, 0), App.Vector(0, 0, 1), 1), False)  # 4
sketch17.addConstraint(Sketcher.Constraint("Vertical", 0))
sketch17.addConstraint(Sketcher.Constraint("Horizontal", 1))
sketch17.addConstraint(Sketcher.Constraint("Vertical", 2))
sketch17.addConstraint(Sketcher.Constraint("Horizontal", 3))
sketch17.addConstraint(Sketcher.Constraint("Diameter", 4, Q("2 mm")))
sketch17.addConstraint(Sketcher.Constraint("DistanceY", 0, 2, 0, 1, Q("10 mm")))
sketch17.addConstraint(Sketcher.Constraint("DistanceX", 1, 1, 1, 2, Q("35.5 mm")))
sketch17.addConstraint(Sketcher.Constraint("DistanceY", 0, 2, 4, 3, Q("5 mm")))
sketch17.addConstraint(Sketcher.Constraint("DistanceX", 4, 3, 1, 2, Q("33 mm")))
sketch17.addConstraint(Sketcher.Constraint("DistanceY", 4, 3, -1, 1, Q("59.5 mm")))
sketch17.addConstraint(Sketcher.Constraint("DistanceX", 4, 3, -1, 1, Q("57.839089 mm")))
pocket12 = doc.addObject("PartDesign::Pocket", "Pocket011")
body.addObject(pocket12)
pocket12.Profile = sketch17
pocket12.Length = 2

# Sketch on XZ plane
sketch18 = doc.addObject("Sketcher::SketchObject", "Sketch017")
body.addObject(sketch18)
sketch18.AttachmentSupport = (doc.XZ_Plane, [""])
sketch18.MapMode = "FlatFace"
sketch18.addGeometry(Part.Circle(App.Vector(-57.8, -59.5, 0), App.Vector(0, 0, 1), 1), False)
sketch18.addConstraint(Sketcher.Constraint("Diameter", 0, Q("2 mm")))
sketch18.addConstraint(Sketcher.Constraint("DistanceY", 0, 3, -1, 1, Q("59.5 mm")))
sketch18.addConstraint(Sketcher.Constraint("DistanceX", 0, 3, -1, 1, Q("57.839089 mm")))
pocket13 = doc.addObject("PartDesign::Pocket", "Pocket012")
body.addObject(pocket13)
pocket13.Profile = sketch18
pocket13.Length = 4

# Sketch on XZ plane
sketch19 = doc.addObject("Sketcher::SketchObject", "Sketch018")
body.addObject(sketch19)
sketch19.AttachmentSupport = (doc.XZ_Plane, [""])
sketch19.MapMode = "FlatFace"
sketch19.AttachmentOffset = App.Placement(App.Vector(0, 0, -2), App.Rotation())
sketch19.addGeometry(Part.LineSegment(App.Vector(-25.8, -62, 0), App.Vector(-35.8, -62, 0)), False)
sketch19.addGeometry(Part.ArcOfCircle(Part.Circle(App.Vector(-35.8, -63, 0), App.Vector(0, 0, 1), 1), math.radians(90), math.radians(270)), False)
sketch19.addGeometry(Part.LineSegment(App.Vector(-35.8, -64, 0), App.Vector(-25.8, -64, 0)), False)
sketch19.addGeometry(Part.ArcOfCircle(Part.Circle(App.Vector(-25.8, -63, 0), App.Vector(0, 0, 1), 1), math.radians(-90), math.radians(90)), False)
sketch19.addConstraint(Sketcher.Constraint("Tangent", 0, 2, 1, 1))
sketch19.addConstraint(Sketcher.Constraint("Tangent", 1, 2, 2, 1))
sketch19.addConstraint(Sketcher.Constraint("Tangent", 2, 2, 3, 1))
sketch19.addConstraint(Sketcher.Constraint("Tangent", 3, 2, 0, 1))
sketch19.addConstraint(Sketcher.Constraint("Horizontal", 0))
sketch19.addConstraint(Sketcher.Constraint("Horizontal", 2))
sketch19.addConstraint(Sketcher.Constraint("DistanceX", 0, 2, 0, 1, Q("10 mm")))
sketch19.addConstraint(Sketcher.Constraint("DistanceY", 1, 3, -1, 1, Q("63 mm")))
sketch19.addConstraint(Sketcher.Constraint("Radius", 1, Q("0.996366 mm")))
sketch19.addConstraint(Sketcher.Constraint("DistanceX", 1, 3, -1, 1, Q("35.839089 mm")))
pocket14 = doc.addObject("PartDesign::Pocket", "Pocket013")
body.addObject(pocket14)
pocket14.Profile = sketch19
pocket14.Length = 1

# Sketch on XZ plane
sketch20 = doc.addObject("Sketcher::SketchObject", "Sketch019")
body.addObject(sketch20)
sketch20.AttachmentSupport = (doc.XZ_Plane, [""])
sketch20.MapMode = "FlatFace"
sketch20.AttachmentOffset = App.Placement(App.Vector(0, 0, -7), App.Rotation())
sketch20.addGeometry(Part.Circle(App.Vector(-101.8, -44.5, 0), App.Vector(0, 0, 1), 3.1), False)
sketch20.addGeometry(Part.Circle(App.Vector(-77, -44.5, 0), App.Vector(0, 0, 1), 3.1), False)
sketch20.addConstraint(Sketcher.Constraint("Equal", 0, 1))
sketch20.addConstraint(Sketcher.Constraint("Horizontal", 0, 3, 1, 3))
sketch20.addConstraint(Sketcher.Constraint("Diameter", 0, Q("6.2 mm")))
sketch20.addConstraint(Sketcher.Constraint("DistanceY", 0, 3, -1, 1, Q("44.5 mm")))
sketch20.addConstraint(Sketcher.Constraint("DistanceX", 0, 3, -1, 1, Q("101.77928 mm")))
sketch20.addConstraint(Sketcher.Constraint("DistanceX", 1, 3, -1, 1, Q("76.986441 mm")))
pocket15 = doc.addObject("PartDesign::Pocket", "Pocket014")
body.addObject(pocket15)
pocket15.Profile = sketch20
pocket15.Type = "ThroughAll"
pocket15.Reversed = True

# Sketch on XZ plane
sketch21 = doc.addObject("Sketcher::SketchObject", "Sketch020")
body.addObject(sketch21)
sketch21.AttachmentSupport = (doc.XZ_Plane, [""])
sketch21.MapMode = "FlatFace"
sketch21.addGeometry(Part.Circle(App.Vector(-102, -44, 0), App.Vector(0, 0, 1), 5), False)
sketch21.addGeometry(Part.Circle(App.Vector(-77, -44, 0), App.Vector(0, 0, 1), 5), False)
sketch21.addConstraint(Sketcher.Constraint("Equal", 0, 1))
sketch21.addConstraint(Sketcher.Constraint("Horizontal", 0, 3, 1, 3))
sketch21.addConstraint(Sketcher.Constraint("Diameter", 0, Q("10.3 mm")))
sketch21.addConstraint(Sketcher.Constraint("DistanceY", 0, 3, -1, 1, Q("44.5 mm")))
sketch21.addConstraint(Sketcher.Constraint("DistanceX", 0, 3, -1, 1, Q("101.77928 mm")))
sketch21.addConstraint(Sketcher.Constraint("DistanceX", 1, 3, -1, 1, Q("76.986441 mm")))
pocket16 = doc.addObject("PartDesign::Pocket", "Pocket015")
body.addObject(pocket16)
pocket16.Profile = sketch21
pocket16.Length = 4

doc.recompute()
